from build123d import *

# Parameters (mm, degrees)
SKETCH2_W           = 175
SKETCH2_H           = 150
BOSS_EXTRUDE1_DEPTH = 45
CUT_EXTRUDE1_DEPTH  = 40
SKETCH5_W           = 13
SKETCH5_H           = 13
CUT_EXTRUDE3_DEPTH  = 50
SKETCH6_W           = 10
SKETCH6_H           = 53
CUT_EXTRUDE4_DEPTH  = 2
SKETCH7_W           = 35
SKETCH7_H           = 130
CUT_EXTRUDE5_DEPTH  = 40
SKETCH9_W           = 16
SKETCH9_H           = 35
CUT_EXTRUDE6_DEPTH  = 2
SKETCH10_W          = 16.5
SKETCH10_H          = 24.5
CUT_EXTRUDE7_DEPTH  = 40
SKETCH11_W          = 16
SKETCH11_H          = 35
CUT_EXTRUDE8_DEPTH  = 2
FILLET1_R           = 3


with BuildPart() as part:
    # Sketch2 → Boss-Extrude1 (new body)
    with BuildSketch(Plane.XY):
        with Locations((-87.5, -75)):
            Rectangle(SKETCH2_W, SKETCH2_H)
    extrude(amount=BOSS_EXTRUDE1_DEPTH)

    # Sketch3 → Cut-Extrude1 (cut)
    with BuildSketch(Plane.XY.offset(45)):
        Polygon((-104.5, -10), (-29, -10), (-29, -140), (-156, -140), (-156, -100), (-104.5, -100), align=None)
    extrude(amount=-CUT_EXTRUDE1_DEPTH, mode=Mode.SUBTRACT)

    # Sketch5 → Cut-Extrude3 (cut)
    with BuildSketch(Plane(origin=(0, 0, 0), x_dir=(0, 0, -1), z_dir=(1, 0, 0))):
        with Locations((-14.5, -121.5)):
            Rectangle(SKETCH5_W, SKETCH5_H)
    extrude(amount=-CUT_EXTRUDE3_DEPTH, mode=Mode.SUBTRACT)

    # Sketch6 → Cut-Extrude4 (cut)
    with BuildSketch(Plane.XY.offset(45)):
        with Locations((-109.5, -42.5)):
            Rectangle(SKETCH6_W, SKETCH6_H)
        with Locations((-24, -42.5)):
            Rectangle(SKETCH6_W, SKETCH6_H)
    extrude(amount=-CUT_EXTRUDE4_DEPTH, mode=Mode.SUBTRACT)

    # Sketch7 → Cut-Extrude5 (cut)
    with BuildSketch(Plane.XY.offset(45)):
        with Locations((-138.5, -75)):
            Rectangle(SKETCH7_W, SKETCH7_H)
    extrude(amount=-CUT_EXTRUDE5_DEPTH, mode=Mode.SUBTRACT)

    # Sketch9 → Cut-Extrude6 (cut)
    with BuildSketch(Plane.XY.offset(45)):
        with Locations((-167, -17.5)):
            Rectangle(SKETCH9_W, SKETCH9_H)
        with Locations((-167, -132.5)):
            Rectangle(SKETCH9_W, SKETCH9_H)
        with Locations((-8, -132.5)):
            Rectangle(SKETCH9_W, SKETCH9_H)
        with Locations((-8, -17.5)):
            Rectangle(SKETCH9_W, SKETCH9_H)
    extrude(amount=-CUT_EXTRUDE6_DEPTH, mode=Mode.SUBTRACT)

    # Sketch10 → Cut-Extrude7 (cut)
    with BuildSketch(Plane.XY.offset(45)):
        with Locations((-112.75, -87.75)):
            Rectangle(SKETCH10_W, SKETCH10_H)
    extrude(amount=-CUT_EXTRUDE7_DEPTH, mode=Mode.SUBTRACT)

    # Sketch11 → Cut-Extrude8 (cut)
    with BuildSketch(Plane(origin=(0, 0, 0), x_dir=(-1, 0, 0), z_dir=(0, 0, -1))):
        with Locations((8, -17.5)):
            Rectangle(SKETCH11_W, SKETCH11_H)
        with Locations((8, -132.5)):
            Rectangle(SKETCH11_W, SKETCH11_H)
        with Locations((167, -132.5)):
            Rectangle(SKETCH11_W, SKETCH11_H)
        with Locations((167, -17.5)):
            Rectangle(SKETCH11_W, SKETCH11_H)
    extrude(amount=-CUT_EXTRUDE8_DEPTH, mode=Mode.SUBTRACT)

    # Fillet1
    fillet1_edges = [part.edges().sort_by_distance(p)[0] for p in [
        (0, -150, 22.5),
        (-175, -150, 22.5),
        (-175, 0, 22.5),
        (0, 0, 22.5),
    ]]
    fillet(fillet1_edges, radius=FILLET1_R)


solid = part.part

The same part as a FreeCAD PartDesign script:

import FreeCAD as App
import Part
import Sketcher

V = App.Vector


def edges_at(feature, points):
    """Names of the edges that pass closest to the given points."""
    edges = feature.Shape.Edges
    near = lambda p: min(range(len(edges)), key=lambda i: edges[i].distToShape(Part.Vertex(*p))[0])
    return sorted({f"Edge{near(p) + 1}" for p in points})

doc = App.newDocument("Part")
body = doc.addObject("PartDesign::Body", "Body")

# Sketch on XY plane
sketch1 = body.newObject("Sketcher::SketchObject", "Sketch")
sketch1.AttachmentSupport = (doc.getObject("XY_Plane"), [""])
sketch1.MapMode = "FlatFace"
sketch1.addGeometry(Part.LineSegment(V(-175, 0, 0), V(-175, -150, 0)), False)
sketch1.addGeometry(Part.LineSegment(V(-175, -150, 0), V(0, -150, 0)), False)
sketch1.addGeometry(Part.LineSegment(V(0, -150, 0), V(0, 0, 0)), False)
sketch1.addGeometry(Part.LineSegment(V(0, 0, 0), V(-175, 0, 0)), False)
sketch1.addConstraint(Sketcher.Constraint("Coincident", 0, 2, 1, 1))
sketch1.addConstraint(Sketcher.Constraint("Coincident", 1, 2, 2, 1))
sketch1.addConstraint(Sketcher.Constraint("Coincident", 2, 2, 3, 1))
sketch1.addConstraint(Sketcher.Constraint("Coincident", 3, 2, 0, 1))
sketch1.addConstraint(Sketcher.Constraint("Vertical", 0))
sketch1.addConstraint(Sketcher.Constraint("Horizontal", 1))
sketch1.addConstraint(Sketcher.Constraint("Vertical", 2))
sketch1.addConstraint(Sketcher.Constraint("Horizontal", 3))
sketch1.addConstraint(Sketcher.Constraint("Coincident", 2, 2, -1, 1))
sketch1.addConstraint(Sketcher.Constraint("DistanceX", 1, 1, 1, 2, 175.0))
sketch1.addConstraint(Sketcher.Constraint("DistanceY", 0, 2, 0, 1, 150.0))
pad1 = body.newObject("PartDesign::Pad", "Pad")
pad1.Profile = sketch1
pad1.Length = 45

# Sketch on XY plane
sketch2 = body.newObject("Sketcher::SketchObject", "Sketch001")
sketch2.AttachmentSupport = (doc.getObject("XY_Plane"), [""])
sketch2.MapMode = "FlatFace"
sketch2.AttachmentOffset = App.Placement(V(0, 0, 45), App.Rotation())
sketch2.addGeometry(Part.LineSegment(V(-29, -10, 0), V(-104, -10, 0)), False)
sketch2.addGeometry(Part.LineSegment(V(-104, -10, 0), V(-104, -100, 0)), False)
sketch2.addGeometry(Part.LineSegment(V(-104, -100, 0), V(-156, -100, 0)), False)
sketch2.addGeometry(Part.LineSegment(V(-156, -100, 0), V(-156, -140, 0)), False)
sketch2.addGeometry(Part.LineSegment(V(-156, -140, 0), V(-29, -140, 0)), False)
sketch2.addGeometry(Part.LineSegment(V(-29, -140, 0), V(-29, -10, 0)), False)
sketch2.addConstraint(Sketcher.Constraint("Coincident", 0, 2, 1, 1))
sketch2.addConstraint(Sketcher.Constraint("Coincident", 1, 2, 2, 1))
sketch2.addConstraint(Sketcher.Constraint("Coincident", 2, 2, 3, 1))
sketch2.addConstraint(Sketcher.Constraint("Coincident", 3, 2, 4, 1))
sketch2.addConstraint(Sketcher.Constraint("Coincident", 4, 2, 5, 1))
sketch2.addConstraint(Sketcher.Constraint("Coincident", 5, 2, 0, 1))
sketch2.addConstraint(Sketcher.Constraint("Horizontal", 0))
sketch2.addConstraint(Sketcher.Constraint("Vertical", 1))
sketch2.addConstraint(Sketcher.Constraint("Horizontal", 2))
sketch2.addConstraint(Sketcher.Constraint("Vertical", 3))
sketch2.addConstraint(Sketcher.Constraint("Horizontal", 4))
sketch2.addConstraint(Sketcher.Constraint("Vertical", 5))
sketch2.addConstraint(Sketcher.Constraint("DistanceX", 4, 1, 4, 2, 127.0))
sketch2.addConstraint(Sketcher.Constraint("DistanceY", 1, 2, 1, 1, 90.0))
sketch2.addConstraint(Sketcher.Constraint("DistanceY", 3, 2, 3, 1, 40.0))
sketch2.addConstraint(Sketcher.Constraint("DistanceX", 0, 2, 0, 1, 75.5))
sketch2.addConstraint(Sketcher.Constraint("DistanceY", 0, 2, -1, 1, 10.0))
sketch2.addConstraint(Sketcher.Constraint("DistanceX", 2, 2, -1, 1, 156.0))
pocket1 = body.newObject("PartDesign::Pocket", "Pocket")
pocket1.Profile = sketch2
pocket1.Length = 40

# Sketch on YZ plane
sketch3 = body.newObject("Sketcher::SketchObject", "Sketch002")
sketch3.AttachmentSupport = (doc.getObject("YZ_Plane"), [""])
sketch3.MapMode = "FlatFace"
sketch3.addGeometry(Part.LineSegment(V(-115, 21, 0), V(-128, 21, 0)), False)
sketch3.addGeometry(Part.LineSegment(V(-128, 21, 0), V(-128, 8, 0)), False)
sketch3.addGeometry(Part.LineSegment(V(-128, 8, 0), V(-115, 8, 0)), False)
sketch3.addGeometry(Part.LineSegment(V(-115, 8, 0), V(-115, 21, 0)), False)
sketch3.addConstraint(Sketcher.Constraint("Coincident", 0, 2, 1, 1))
sketch3.addConstraint(Sketcher.Constraint("Coincident", 1, 2, 2, 1))
sketch3.addConstraint(Sketcher.Constraint("Coincident", 2, 2, 3, 1))
sketch3.addConstraint(Sketcher.Constraint("Coincident", 3, 2, 0, 1))
sketch3.addConstraint(Sketcher.Constraint("Horizontal", 0))
sketch3.addConstraint(Sketcher.Constraint("Vertical", 1))
sketch3.addConstraint(Sketcher.Constraint("Horizontal", 2))
sketch3.addConstraint(Sketcher.Constraint("Vertical", 3))
sketch3.addConstraint(Sketcher.Constraint("Equal", 2, 1))
sketch3.addConstraint(Sketcher.Constraint("DistanceX", 0, 2, 0, 1, 13.0))
sketch3.addConstraint(Sketcher.Constraint("DistanceX", 0, 2, -1, 1, 128.0))
sketch3.addConstraint(Sketcher.Constraint("DistanceY", -1, 1, 0, 2, 21.0))
pocket2 = body.newObject("PartDesign::Pocket", "Pocket001")
pocket2.Profile = sketch3
pocket2.Length = 50

# Sketch on XY plane
sketch4 = body.newObject("Sketcher::SketchObject", "Sketch003")
sketch4.AttachmentSupport = (doc.getObject("XY_Plane"), [""])
sketch4.MapMode = "FlatFace"
sketch4.AttachmentOffset = App.Placement(V(0, 0, 45), App.Rotation())
sketch4.addGeometry(Part.LineSegment(V(-114, -16, 0), V(-114, -69, 0)), False)
sketch4.addGeometry(Part.LineSegment(V(-114, -69, 0), V(-104, -69, 0)), False)
sketch4.addGeometry(Part.LineSegment(V(-104, -69, 0), V(-104, -16, 0)), False)
sketch4.addGeometry(Part.LineSegment(V(-104, -16, 0), V(-114, -16, 0)), False)
sketch4.addGeometry(Part.LineSegment(V(-29, -16, 0), V(-29, -69, 0)), False)
sketch4.addGeometry(Part.LineSegment(V(-29, -69, 0), V(-19, -69, 0)), False)
sketch4.addGeometry(Part.LineSegment(V(-19, -69, 0), V(-19, -16, 0)), False)
sketch4.addGeometry(Part.LineSegment(V(-19, -16, 0), V(-29, -16, 0)), False)
sketch4.addConstraint(Sketcher.Constraint("Coincident", 0, 2, 1, 1))
sketch4.addConstraint(Sketcher.Constraint("Coincident", 1, 2, 2, 1))
sketch4.addConstraint(Sketcher.Constraint("Coincident", 2, 2, 3, 1))
sketch4.addConstraint(Sketcher.Constraint("Coincident", 3, 2, 0, 1))
sketch4.addConstraint(Sketcher.Constraint("Coincident", 4, 2, 5, 1))
sketch4.addConstraint(Sketcher.Constraint("Coincident", 5, 2, 6, 1))
sketch4.addConstraint(Sketcher.Constraint("Coincident", 6, 2, 7, 1))
sketch4.addConstraint(Sketcher.Constraint("Coincident", 7, 2, 4, 1))
sketch4.addConstraint(Sketcher.Constraint("Vertical", 0))
sketch4.addConstraint(Sketcher.Constraint("Horizontal", 1))
sketch4.addConstraint(Sketcher.Constraint("Vertical", 2))
sketch4.addConstraint(Sketcher.Constraint("Horizontal", 3))
sketch4.addConstraint(Sketcher.Constraint("Vertical", 4))
sketch4.addConstraint(Sketcher.Constraint("Horizontal", 5))
sketch4.addConstraint(Sketcher.Constraint("Vertical", 6))
sketch4.addConstraint(Sketcher.Constraint("Horizontal", 7))
sketch4.addConstraint(Sketcher.Constraint("Horizontal", 1, 2, 4, 2))
sketch4.addConstraint(Sketcher.Constraint("Horizontal", 3, 2, 6, 2))
sketch4.addConstraint(Sketcher.Constraint("Equal", 3, 5))
sketch4.addConstraint(Sketcher.Constraint("DistanceX", 1, 1, 1, 2, 10.0))
sketch4.addConstraint(Sketcher.Constraint("DistanceY", 0, 2, 0, 1, 53.0))
sketch4.addConstraint(Sketcher.Constraint("DistanceY", 0, 2, -1, 1, 69.0))
sketch4.addConstraint(Sketcher.Constraint("DistanceX", 4, 2, -1, 1, 29.0))
sketch4.addConstraint(Sketcher.Constraint("DistanceX", 0, 2, -1, 1, 114.5))
pocket3 = body.newObject("PartDesign::Pocket", "Pocket002")
pocket3.Profile = sketch4
pocket3.Length = 2

# Sketch on XY plane
sketch5 = body.newObject("Sketcher::SketchObject", "Sketch004")
sketch5.AttachmentSupport = (doc.getObject("XY_Plane"), [""])
sketch5.MapMode = "FlatFace"
sketch5.AttachmentOffset = App.Placement(V(0, 0, 45), App.Rotation())
sketch5.addGeometry(Part.LineSegment(V(-156, -10, 0), V(-156, -140, 0)), False)
sketch5.addGeometry(Part.LineSegment(V(-156, -140, 0), V(-121, -140, 0)), False)
sketch5.addGeometry(Part.LineSegment(V(-121, -140, 0), V(-121, -10, 0)), False)
sketch5.addGeometry(Part.LineSegment(V(-121, -10, 0), V(-156, -10, 0)), False)
sketch5.addConstraint(Sketcher.Constraint("Coincident", 0, 2, 1, 1))
sketch5.addConstraint(Sketcher.Constraint("Coincident", 1, 2, 2, 1))
sketch5.addConstraint(Sketcher.Constraint("Coincident", 2, 2, 3, 1))
sketch5.addConstraint(Sketcher.Constraint("Coincident", 3, 2, 0, 1))
sketch5.addConstraint(Sketcher.Constraint("Vertical", 0))
sketch5.addConstraint(Sketcher.Constraint("Horizontal", 1))
sketch5.addConstraint(Sketcher.Constraint("Vertical", 2))
sketch5.addConstraint(Sketcher.Constraint("Horizontal", 3))
sketch5.addConstraint(Sketcher.Constraint("DistanceX", 1, 1, 1, 2, 35.0))
sketch5.addConstraint(Sketcher.Constraint("DistanceY", 0, 2, 0, 1, 130.0))
sketch5.addConstraint(Sketcher.Constraint("DistanceX", 0, 2, -1, 1, 156.0))
sketch5.addConstraint(Sketcher.Constraint("DistanceY", 0, 2, -1, 1, 140.0))
pocket4 = body.newObject("PartDesign::Pocket", "Pocket003")
pocket4.Profile = sketch5
pocket4.Length = 40

# Sketch on XY plane
sketch6 = body.newObject("Sketcher::SketchObject", "Sketch005")
sketch6.AttachmentSupport = (doc.getObject("XY_Plane"), [""])
sketch6.MapMode = "FlatFace"
sketch6.AttachmentOffset = App.Placement(V(0, 0, 45), App.Rotation())
sketch6.addGeometry(Part.LineSegment(V(-175, 0, 0), V(-175, -35, 0)), False)
sketch6.addGeometry(Part.LineSegment(V(-175, -35, 0), V(-159, -35, 0)), False)
sketch6.addGeometry(Part.LineSegment(V(-159, -35, 0), V(-159, 0, 0)), False)
sketch6.addGeometry(Part.LineSegment(V(-159, 0, 0), V(-175, 0, 0)), False)
sketch6.addGeometry(Part.LineSegment(V(-175, -115, 0), V(-175, -150, 0)), False)
sketch6.addGeometry(Part.LineSegment(V(-175, -150, 0), V(-159, -150, 0)), False)
sketch6.addGeometry(Part.LineSegment(V(-159, -150, 0), V(-159, -115, 0)), False)
sketch6.addGeometry(Part.LineSegment(V(-159, -115, 0), V(-175, -115, 0)), False)
sketch6.addGeometry(Part.LineSegment(V(-16, -115, 0), V(-16, -150, 0)), False)
sketch6.addGeometry(Part.LineSegment(V(-16, -150, 0), V(0, -150, 0)), False)
sketch6.addGeometry(Part.LineSegment(V(0, -150, 0), V(0, -115, 0)), False)
sketch6.addGeometry(Part.LineSegment(V(0, -115, 0), V(-16, -115, 0)), False)
sketch6.addGeometry(Part.LineSegment(V(-16, 0, 0), V(-16, -35, 0)), False)
sketch6.addGeometry(Part.LineSegment(V(-16, -35, 0), V(0, -35, 0)), False)
sketch6.addGeometry(Part.LineSegment(V(0, -35, 0), V(0, 0, 0)), False)
sketch6.addGeometry(Part.LineSegment(V(0, 0, 0), V(-16, 0, 0)), False)
sketch6.addConstraint(Sketcher.Constraint("Coincident", 0, 2, 1, 1))
sketch6.addConstraint(Sketcher.Constraint("Coincident", 1, 2, 2, 1))
sketch6.addConstraint(Sketcher.Constraint("Coincident", 2, 2, 3, 1))
sketch6.addConstraint(Sketcher.Constraint("Coincident", 3, 2, 0, 1))
sketch6.addConstraint(Sketcher.Constraint("Coincident", 4, 2, 5, 1))
sketch6.addConstraint(Sketcher.Constraint("Coincident", 5, 2, 6, 1))
sketch6.addConstraint(Sketcher.Constraint("Coincident", 6, 2, 7, 1))
sketch6.addConstraint(Sketcher.Constraint("Coincident", 7, 2, 4, 1))
sketch6.addConstraint(Sketcher.Constraint("Coincident", 8, 2, 9, 1))
sketch6.addConstraint(Sketcher.Constraint("Coincident", 9, 2, 10, 1))
sketch6.addConstraint(Sketcher.Constraint("Coincident", 10, 2, 11, 1))
sketch6.addConstraint(Sketcher.Constraint("Coincident", 11, 2, 8, 1))
sketch6.addConstraint(Sketcher.Constraint("Coincident", 12, 2, 13, 1))
sketch6.addConstraint(Sketcher.Constraint("Coincident", 13, 2, 14, 1))
sketch6.addConstraint(Sketcher.Constraint("Coincident", 14, 2, 15, 1))
sketch6.addConstraint(Sketcher.Constraint("Coincident", 15, 2, 12, 1))
sketch6.addConstraint(Sketcher.Constraint("Vertical", 0))
sketch6.addConstraint(Sketcher.Constraint("Horizontal", 1))
sketch6.addConstraint(Sketcher.Constraint("Vertical", 2))
sketch6.addConstraint(Sketcher.Constraint("Horizontal", 3))
sketch6.addConstraint(Sketcher.Constraint("Vertical", 4))
sketch6.addConstraint(Sketcher.Constraint("Horizontal", 5))
sketch6.addConstraint(Sketcher.Constraint("Vertical", 6))
sketch6.addConstraint(Sketcher.Constraint("Horizontal", 7))
sketch6.addConstraint(Sketcher.Constraint("Vertical", 8))
sketch6.addConstraint(Sketcher.Constraint("Horizontal", 9))
sketch6.addConstraint(Sketcher.Constraint("Vertical", 10))
sketch6.addConstraint(Sketcher.Constraint("Horizontal", 11))
sketch6.addConstraint(Sketcher.Constraint("Vertical", 12))
sketch6.addConstraint(Sketcher.Constraint("Horizontal", 13))
sketch6.addConstraint(Sketcher.Constraint("Vertical", 14))
sketch6.addConstraint(Sketcher.Constraint("Horizontal", 15))
sketch6.addConstraint(Sketcher.Constraint("Coincident", 14, 2, -1, 1))
sketch6.addConstraint(Sketcher.Constraint("PointOnObject", 2, 2, -1))
sketch6.addConstraint(Sketcher.Constraint("PointOnObject", 9, 2, -2))
sketch6.addConstraint(Sketcher.Constraint("Horizontal", 5, 2, 8, 2))
sketch6.addConstraint(Sketcher.Constraint("Horizontal", 7, 2, 10, 2))
sketch6.addConstraint(Sketcher.Constraint("Horizontal", 1, 2, 12, 2))
sketch6.addConstraint(Sketcher.Constraint("Vertical", 3, 2, 4, 2))
sketch6.addConstraint(Sketcher.Constraint("Vertical", 2, 2, 5, 2))
sketch6.addConstraint(Sketcher.Constraint("Vertical", 11, 2, 12, 2))
sketch6.addConstraint(Sketcher.Constraint("Equal", 7, 9))
sketch6.addConstraint(Sketcher.Constraint("Equal", 2, 4))
sketch6.addConstraint(Sketcher.Constraint("DistanceX", 1, 1, 1, 2, 16.0))
sketch6.addConstraint(Sketcher.Constraint("DistanceY", 0, 2, 0, 1, 35.0))
sketch6.addConstraint(Sketcher.Constraint("DistanceX", 0, 2, -1, 1, 175.0))
sketch6.addConstraint(Sketcher.Constraint("DistanceY", 4, 2, -1, 1, 150.0))
pocket5 = body.newObject("PartDesign::Pocket", "Pocket004")
pocket5.Profile = sketch6
pocket5.Length = 2

# Sketch on XY plane
sketch7 = body.newObject("Sketcher::SketchObject", "Sketch006")
sketch7.AttachmentSupport = (doc.getObject("XY_Plane"), [""])
sketch7.MapMode = "FlatFace"
sketch7.AttachmentOffset = App.Placement(V(0, 0, 45), App.Rotation())
sketch7.addGeometry(Part.LineSegment(V(-121, -76, 0), V(-121, -100, 0)), False)
sketch7.addGeometry(Part.LineSegment(V(-121, -100, 0), V(-104, -100, 0)), False)
sketch7.addGeometry(Part.LineSegment(V(-104, -100, 0), V(-104, -76, 0)), False)
sketch7.addGeometry(Part.LineSegment(V(-104, -76, 0), V(-121, -76, 0)), False)
sketch7.addConstraint(Sketcher.Constraint("Coincident", 0, 2, 1, 1))
sketch7.addConstraint(Sketcher.Constraint("Coincident", 1, 2, 2, 1))
sketch7.addConstraint(Sketcher.Constraint("Coincident", 2, 2, 3, 1))
sketch7.addConstraint(Sketcher.Constraint("Coincident", 3, 2, 0, 1))
sketch7.addConstraint(Sketcher.Constraint("Vertical", 0))
sketch7.addConstraint(Sketcher.Constraint("Horizontal", 1))
sketch7.addConstraint(Sketcher.Constraint("Vertical", 2))
sketch7.addConstraint(Sketcher.Constraint("Horizontal", 3))
sketch7.addConstraint(Sketcher.Constraint("DistanceX", 1, 1, 1, 2, 16.5))
sketch7.addConstraint(Sketcher.Constraint("DistanceY", 0, 2, 0, 1, 24.5))
sketch7.addConstraint(Sketcher.Constraint("DistanceX", 0, 2, -1, 1, 121.0))
sketch7.addConstraint(Sketcher.Constraint("DistanceY", 0, 2, -1, 1, 100.0))
pocket6 = body.newObject("PartDesign::Pocket", "Pocket005")
pocket6.Profile = sketch7
pocket6.Length = 40

# Sketch on XY plane
sketch8 = body.newObject("Sketcher::SketchObject", "Sketch007")
sketch8.AttachmentSupport = (doc.getObject("XY_Plane"), [""])
sketch8.MapMode = "FlatFace"
sketch8.addGeometry(Part.LineSegment(V(0, 0, 0), V(0, -35, 0)), False)
sketch8.addGeometry(Part.LineSegment(V(0, -35, 0), V(-16, -35, 0)), False)
sketch8.addGeometry(Part.LineSegment(V(-16, -35, 0), V(-16, 0, 0)), False)
sketch8.addGeometry(Part.LineSegment(V(-16, 0, 0), V(0, 0, 0)), False)
sketch8.addGeometry(Part.LineSegment(V(0, -115, 0), V(0, -150, 0)), False)
sketch8.addGeometry(Part.LineSegment(V(0, -150, 0), V(-16, -150, 0)), False)
sketch8.addGeometry(Part.LineSegment(V(-16, -150, 0), V(-16, -115, 0)), False)
sketch8.addGeometry(Part.LineSegment(V(-16, -115, 0), V(0, -115, 0)), False)
sketch8.addGeometry(Part.LineSegment(V(-159, -115, 0), V(-159, -150, 0)), False)
sketch8.addGeometry(Part.LineSegment(V(-159, -150, 0), V(-175, -150, 0)), False)
sketch8.addGeometry(Part.LineSegment(V(-175, -150, 0), V(-175, -115, 0)), False)
sketch8.addGeometry(Part.LineSegment(V(-175, -115, 0), V(-159, -115, 0)), False)
sketch8.addGeometry(Part.LineSegment(V(-159, 0, 0), V(-159, -35, 0)), False)
sketch8.addGeometry(Part.LineSegment(V(-159, -35, 0), V(-175, -35, 0)), False)
sketch8.addGeometry(Part.LineSegment(V(-175, -35, 0), V(-175, 0, 0)), False)
sketch8.addGeometry(Part.LineSegment(V(-175, 0, 0), V(-159, 0, 0)), False)
sketch8.addConstraint(Sketcher.Constraint("Coincident", 0, 2, 1, 1))
sketch8.addConstraint(Sketcher.Constraint("Coincident", 1, 2, 2, 1))
sketch8.addConstraint(Sketcher.Constraint("Coincident", 2, 2, 3, 1))
sketch8.addConstraint(Sketcher.Constraint("Coincident", 3, 2, 0, 1))
sketch8.addConstraint(Sketcher.Constraint("Coincident", 4, 2, 5, 1))
sketch8.addConstraint(Sketcher.Constraint("Coincident", 5, 2, 6, 1))
sketch8.addConstraint(Sketcher.Constraint("Coincident", 6, 2, 7, 1))
sketch8.addConstraint(Sketcher.Constraint("Coincident", 7, 2, 4, 1))
sketch8.addConstraint(Sketcher.Constraint("Coincident", 8, 2, 9, 1))
sketch8.addConstraint(Sketcher.Constraint("Coincident", 9, 2, 10, 1))
sketch8.addConstraint(Sketcher.Constraint("Coincident", 10, 2, 11, 1))
sketch8.addConstraint(Sketcher.Constraint("Coincident", 11, 2, 8, 1))
sketch8.addConstraint(Sketcher.Constraint("Coincident", 12, 2, 13, 1))
sketch8.addConstraint(Sketcher.Constraint("Coincident", 13, 2, 14, 1))
sketch8.addConstraint(Sketcher.Constraint("Coincident", 14, 2, 15, 1))
sketch8.addConstraint(Sketcher.Constraint("Coincident", 15, 2, 12, 1))
sketch8.addConstraint(Sketcher.Constraint("Vertical", 0))
sketch8.addConstraint(Sketcher.Constraint("Horizontal", 1))
sketch8.addConstraint(Sketcher.Constraint("Vertical", 2))
sketch8.addConstraint(Sketcher.Constraint("Horizontal", 3))
sketch8.addConstraint(Sketcher.Constraint("Vertical", 4))
sketch8.addConstraint(Sketcher.Constraint("Horizontal", 5))
sketch8.addConstraint(Sketcher.Constraint("Vertical", 6))
sketch8.addConstraint(Sketcher.Constraint("Horizontal", 7))
sketch8.addConstraint(Sketcher.Constraint("Vertical", 8))
sketch8.addConstraint(Sketcher.Constraint("Horizontal", 9))
sketch8.addConstraint(Sketcher.Constraint("Vertical", 10))
sketch8.addConstraint(Sketcher.Constraint("Horizontal", 11))
sketch8.addConstraint(Sketcher.Constraint("Vertical", 12))
sketch8.addConstraint(Sketcher.Constraint("Horizontal", 13))
sketch8.addConstraint(Sketcher.Constraint("Vertical", 14))
sketch8.addConstraint(Sketcher.Constraint("Horizontal", 15))
sketch8.addConstraint(Sketcher.Constraint("Coincident", 3, 2, -1, 1))
sketch8.addConstraint(Sketcher.Constraint("PointOnObject", 4, 2, -2))
sketch8.addConstraint(Sketcher.Constraint("PointOnObject", 14, 2, -1))
sketch8.addConstraint(Sketcher.Constraint("Horizontal", 5, 2, 8, 2))
sketch8.addConstraint(Sketcher.Constraint("Horizontal", 7, 2, 10, 2))
sketch8.addConstraint(Sketcher.Constraint("Horizontal", 1, 2, 12, 2))
sketch8.addConstraint(Sketcher.Constraint("Vertical", 2, 2, 5, 2))
sketch8.addConstraint(Sketcher.Constraint("Vertical", 11, 2, 12, 2))
sketch8.addConstraint(Sketcher.Constraint("Vertical", 10, 2, 13, 2))
sketch8.addConstraint(Sketcher.Constraint("Equal", 7, 9))
sketch8.addConstraint(Sketcher.Constraint("Equal", 2, 4))
sketch8.addConstraint(Sketcher.Constraint("DistanceX", 1, 2, 1, 1, 16.0))
sketch8.addConstraint(Sketcher.Constraint("DistanceY", 0, 2, 0, 1, 35.0))
sketch8.addConstraint(Sketcher.Constraint("DistanceY", 4, 2, -1, 1, 150.0))
sketch8.addConstraint(Sketcher.Constraint("DistanceX", 8, 2, -1, 1, 159.0))
pocket7 = body.newObject("PartDesign::Pocket", "Pocket006")
pocket7.Profile = sketch8
pocket7.Length = 2
pocket7.Reversed = True
doc.recompute()

fillet = body.newObject("PartDesign::Fillet", "Fillet")
fillet.Base = (pocket7, edges_at(pocket7, [
    (0, -150, 22.5),
    (-175, -150, 22.5),
    (-175, 0, 22.5),
    (0, 0, 22.5),
]))
fillet.Radius = 3

doc.recompute()
